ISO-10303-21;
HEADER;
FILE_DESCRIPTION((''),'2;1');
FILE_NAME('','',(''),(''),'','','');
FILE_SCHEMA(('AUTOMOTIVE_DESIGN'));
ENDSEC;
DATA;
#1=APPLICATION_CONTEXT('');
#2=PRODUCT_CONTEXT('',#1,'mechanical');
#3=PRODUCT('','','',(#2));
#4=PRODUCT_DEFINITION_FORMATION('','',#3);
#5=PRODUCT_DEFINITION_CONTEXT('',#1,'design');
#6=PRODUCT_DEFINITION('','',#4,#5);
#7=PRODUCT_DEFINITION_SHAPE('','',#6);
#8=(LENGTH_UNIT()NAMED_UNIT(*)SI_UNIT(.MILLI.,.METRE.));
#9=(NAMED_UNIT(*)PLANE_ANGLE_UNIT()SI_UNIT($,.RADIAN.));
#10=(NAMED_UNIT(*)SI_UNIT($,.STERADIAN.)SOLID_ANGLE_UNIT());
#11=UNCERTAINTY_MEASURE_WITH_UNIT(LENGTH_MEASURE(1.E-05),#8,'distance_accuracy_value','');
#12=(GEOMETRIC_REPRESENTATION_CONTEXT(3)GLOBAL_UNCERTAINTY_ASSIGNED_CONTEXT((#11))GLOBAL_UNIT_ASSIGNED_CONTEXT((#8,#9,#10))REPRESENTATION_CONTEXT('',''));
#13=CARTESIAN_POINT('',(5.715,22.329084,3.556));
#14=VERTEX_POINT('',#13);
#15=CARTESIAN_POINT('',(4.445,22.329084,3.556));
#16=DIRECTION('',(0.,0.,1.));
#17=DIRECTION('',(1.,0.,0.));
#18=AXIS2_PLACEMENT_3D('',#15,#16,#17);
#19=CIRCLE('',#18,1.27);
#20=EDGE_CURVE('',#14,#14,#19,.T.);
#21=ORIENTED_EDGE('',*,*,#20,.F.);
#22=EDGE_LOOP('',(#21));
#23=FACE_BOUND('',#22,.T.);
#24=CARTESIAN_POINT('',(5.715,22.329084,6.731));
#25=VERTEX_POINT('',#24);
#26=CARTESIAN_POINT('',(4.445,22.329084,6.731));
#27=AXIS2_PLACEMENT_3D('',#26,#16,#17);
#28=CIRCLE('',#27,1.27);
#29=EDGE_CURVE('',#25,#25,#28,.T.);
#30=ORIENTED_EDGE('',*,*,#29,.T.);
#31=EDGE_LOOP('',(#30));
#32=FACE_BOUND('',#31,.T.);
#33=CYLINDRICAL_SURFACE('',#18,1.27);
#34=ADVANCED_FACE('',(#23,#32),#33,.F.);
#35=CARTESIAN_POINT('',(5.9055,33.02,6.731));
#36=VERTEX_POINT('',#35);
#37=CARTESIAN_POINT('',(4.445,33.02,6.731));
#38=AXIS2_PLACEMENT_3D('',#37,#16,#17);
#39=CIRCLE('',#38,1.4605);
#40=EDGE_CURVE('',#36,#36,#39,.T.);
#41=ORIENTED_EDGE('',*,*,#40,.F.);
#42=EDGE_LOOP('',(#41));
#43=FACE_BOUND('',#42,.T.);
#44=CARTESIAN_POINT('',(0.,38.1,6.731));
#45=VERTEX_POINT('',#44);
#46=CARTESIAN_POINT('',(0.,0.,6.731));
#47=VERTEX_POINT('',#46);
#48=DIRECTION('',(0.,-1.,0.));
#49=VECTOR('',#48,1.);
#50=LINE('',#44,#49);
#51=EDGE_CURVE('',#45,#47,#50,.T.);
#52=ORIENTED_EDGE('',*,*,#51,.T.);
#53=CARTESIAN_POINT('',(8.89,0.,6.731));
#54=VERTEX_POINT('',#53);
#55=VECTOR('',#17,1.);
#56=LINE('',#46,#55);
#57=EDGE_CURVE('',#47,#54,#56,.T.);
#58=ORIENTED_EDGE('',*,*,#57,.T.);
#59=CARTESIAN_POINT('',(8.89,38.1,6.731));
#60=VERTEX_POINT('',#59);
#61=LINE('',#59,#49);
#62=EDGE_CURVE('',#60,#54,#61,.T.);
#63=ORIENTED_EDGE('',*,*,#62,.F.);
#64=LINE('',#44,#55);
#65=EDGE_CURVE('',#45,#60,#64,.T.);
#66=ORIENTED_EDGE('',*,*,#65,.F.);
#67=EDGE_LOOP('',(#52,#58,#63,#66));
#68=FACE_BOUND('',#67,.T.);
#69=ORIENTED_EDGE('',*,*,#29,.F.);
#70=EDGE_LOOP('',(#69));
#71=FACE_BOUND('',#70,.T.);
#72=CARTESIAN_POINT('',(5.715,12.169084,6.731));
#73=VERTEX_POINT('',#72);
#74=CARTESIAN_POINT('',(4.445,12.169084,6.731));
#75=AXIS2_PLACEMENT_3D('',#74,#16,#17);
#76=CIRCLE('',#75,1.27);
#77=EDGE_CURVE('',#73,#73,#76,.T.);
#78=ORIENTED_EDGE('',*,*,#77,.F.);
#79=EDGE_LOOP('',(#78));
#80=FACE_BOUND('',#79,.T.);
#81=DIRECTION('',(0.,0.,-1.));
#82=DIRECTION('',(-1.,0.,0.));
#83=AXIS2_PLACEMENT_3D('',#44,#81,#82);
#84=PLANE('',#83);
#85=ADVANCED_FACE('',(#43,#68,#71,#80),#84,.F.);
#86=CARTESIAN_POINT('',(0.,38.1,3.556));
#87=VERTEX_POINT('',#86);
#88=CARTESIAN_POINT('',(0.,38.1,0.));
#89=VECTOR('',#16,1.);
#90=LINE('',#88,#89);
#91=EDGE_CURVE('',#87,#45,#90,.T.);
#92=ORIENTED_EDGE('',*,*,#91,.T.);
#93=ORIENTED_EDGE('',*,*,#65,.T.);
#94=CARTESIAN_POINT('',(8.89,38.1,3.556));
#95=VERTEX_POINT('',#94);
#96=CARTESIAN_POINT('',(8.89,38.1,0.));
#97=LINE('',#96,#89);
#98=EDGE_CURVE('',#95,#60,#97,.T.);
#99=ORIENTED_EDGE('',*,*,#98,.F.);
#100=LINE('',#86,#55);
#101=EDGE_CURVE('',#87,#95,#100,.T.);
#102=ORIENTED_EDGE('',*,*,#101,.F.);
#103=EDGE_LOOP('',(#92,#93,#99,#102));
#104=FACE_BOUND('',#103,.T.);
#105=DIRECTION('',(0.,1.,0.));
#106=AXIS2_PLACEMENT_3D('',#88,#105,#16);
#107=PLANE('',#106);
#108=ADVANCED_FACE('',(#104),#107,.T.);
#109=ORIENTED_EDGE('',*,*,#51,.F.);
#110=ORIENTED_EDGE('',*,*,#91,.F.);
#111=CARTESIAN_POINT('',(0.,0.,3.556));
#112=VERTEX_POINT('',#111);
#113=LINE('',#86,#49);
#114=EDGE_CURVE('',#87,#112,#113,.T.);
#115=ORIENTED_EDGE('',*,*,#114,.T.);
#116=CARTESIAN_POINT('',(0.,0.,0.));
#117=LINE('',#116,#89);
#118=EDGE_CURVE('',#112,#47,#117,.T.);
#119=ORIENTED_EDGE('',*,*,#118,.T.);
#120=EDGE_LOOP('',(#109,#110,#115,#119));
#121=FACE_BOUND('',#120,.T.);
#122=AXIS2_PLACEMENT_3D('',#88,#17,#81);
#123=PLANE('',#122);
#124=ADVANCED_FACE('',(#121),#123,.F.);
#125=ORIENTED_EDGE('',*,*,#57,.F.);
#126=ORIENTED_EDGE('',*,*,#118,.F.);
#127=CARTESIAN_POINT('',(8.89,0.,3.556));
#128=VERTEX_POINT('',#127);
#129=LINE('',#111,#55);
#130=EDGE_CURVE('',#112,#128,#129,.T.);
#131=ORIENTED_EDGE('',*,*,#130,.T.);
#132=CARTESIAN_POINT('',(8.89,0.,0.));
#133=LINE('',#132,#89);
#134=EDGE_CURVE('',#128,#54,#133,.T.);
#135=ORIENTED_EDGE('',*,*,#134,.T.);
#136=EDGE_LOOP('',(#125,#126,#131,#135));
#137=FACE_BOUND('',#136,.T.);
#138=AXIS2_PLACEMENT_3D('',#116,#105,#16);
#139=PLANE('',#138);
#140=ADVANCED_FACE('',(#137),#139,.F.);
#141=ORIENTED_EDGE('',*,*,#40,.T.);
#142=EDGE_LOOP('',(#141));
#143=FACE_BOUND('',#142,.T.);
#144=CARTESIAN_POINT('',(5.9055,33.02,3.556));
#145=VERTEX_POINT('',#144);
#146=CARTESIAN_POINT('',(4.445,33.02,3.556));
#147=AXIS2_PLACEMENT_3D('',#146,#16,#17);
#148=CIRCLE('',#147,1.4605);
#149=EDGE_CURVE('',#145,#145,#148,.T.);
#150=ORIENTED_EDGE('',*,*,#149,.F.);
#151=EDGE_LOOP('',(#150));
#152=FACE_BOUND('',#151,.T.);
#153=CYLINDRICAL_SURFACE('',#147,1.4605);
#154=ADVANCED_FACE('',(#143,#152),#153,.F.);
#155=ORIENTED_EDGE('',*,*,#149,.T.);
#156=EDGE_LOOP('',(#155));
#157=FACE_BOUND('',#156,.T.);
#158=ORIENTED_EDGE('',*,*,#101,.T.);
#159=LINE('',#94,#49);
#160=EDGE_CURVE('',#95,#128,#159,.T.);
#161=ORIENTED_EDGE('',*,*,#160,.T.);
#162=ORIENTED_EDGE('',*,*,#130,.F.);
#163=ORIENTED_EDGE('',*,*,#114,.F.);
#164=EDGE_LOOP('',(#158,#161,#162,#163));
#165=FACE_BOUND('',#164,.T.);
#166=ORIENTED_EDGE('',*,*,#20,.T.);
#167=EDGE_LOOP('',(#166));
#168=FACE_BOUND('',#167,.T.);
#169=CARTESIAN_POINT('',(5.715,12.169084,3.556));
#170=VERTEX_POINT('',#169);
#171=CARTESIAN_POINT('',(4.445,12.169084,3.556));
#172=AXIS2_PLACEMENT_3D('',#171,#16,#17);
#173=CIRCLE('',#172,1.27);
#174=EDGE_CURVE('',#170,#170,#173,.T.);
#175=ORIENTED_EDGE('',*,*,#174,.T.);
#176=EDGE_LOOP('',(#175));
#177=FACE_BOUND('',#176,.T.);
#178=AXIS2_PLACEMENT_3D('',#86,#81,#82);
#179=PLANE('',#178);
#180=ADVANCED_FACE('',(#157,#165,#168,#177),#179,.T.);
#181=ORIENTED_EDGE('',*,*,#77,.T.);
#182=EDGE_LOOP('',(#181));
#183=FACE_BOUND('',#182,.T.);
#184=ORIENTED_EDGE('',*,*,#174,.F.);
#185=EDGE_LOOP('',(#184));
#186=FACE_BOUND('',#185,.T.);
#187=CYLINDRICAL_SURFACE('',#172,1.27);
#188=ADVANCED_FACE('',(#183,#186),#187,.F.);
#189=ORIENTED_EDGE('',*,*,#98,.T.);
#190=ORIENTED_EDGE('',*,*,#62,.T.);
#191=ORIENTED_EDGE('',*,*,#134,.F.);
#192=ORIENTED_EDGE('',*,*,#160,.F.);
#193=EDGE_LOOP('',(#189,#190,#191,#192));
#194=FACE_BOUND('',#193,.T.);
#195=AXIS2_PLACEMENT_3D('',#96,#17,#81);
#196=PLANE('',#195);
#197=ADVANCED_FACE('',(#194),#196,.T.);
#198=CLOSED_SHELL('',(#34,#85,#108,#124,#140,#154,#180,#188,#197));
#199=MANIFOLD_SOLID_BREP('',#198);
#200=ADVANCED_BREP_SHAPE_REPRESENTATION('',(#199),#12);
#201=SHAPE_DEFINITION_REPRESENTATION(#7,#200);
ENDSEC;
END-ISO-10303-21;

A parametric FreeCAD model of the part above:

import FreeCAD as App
import Part
import Sketcher
Q = App.Units.Quantity


def add_polygon(sketch, points):
    """Adds a closed chain of lines whose ends are joined by coincident constraints."""
    first, n = sketch.GeometryCount, len(points)
    for a, b in zip(points, points[1:] + points[:1]):
        sketch.addGeometry(Part.LineSegment(App.Vector(*a, 0), App.Vector(*b, 0)), False)
    for i in range(n):
        sketch.addConstraint(Sketcher.Constraint("Coincident", first + i, 2, first + (i + 1) % n, 1))

doc = App.newDocument("Part")
body = doc.addObject("PartDesign::Body", "Body")

# Sketch on XZ plane
sketch1 = body.newObject("Sketcher::SketchObject", "Sketch")
sketch1.AttachmentSupport = (doc.getObject("XZ_Plane"), [""])
sketch1.MapMode = "FlatFace"
add_polygon(sketch1, [(0, 3.556), (0, 6.731), (8.89, 6.731), (8.89, 3.556)])  # lines 0-3
sketch1.addConstraint([
    Sketcher.Constraint("Vertical", 0),
    Sketcher.Constraint("Horizontal", 1),
    Sketcher.Constraint("Vertical", 2),
    Sketcher.Constraint("Horizontal", 3),
    Sketcher.Constraint("PointOnObject", 0, 2, -2),
    Sketcher.Constraint("DistanceX", 1, 1, 1, 2, Q("0.35 in")),
    Sketcher.Constraint("DistanceY", 0, 1, 0, 2, Q("0.125 in")),
    Sketcher.Constraint("DistanceY", -1, 1, 2, 2, Q("0.14 in")),
])
pad1 = body.newObject("PartDesign::Pad", "Pad")
pad1.Profile = sketch1
pad1.Length = Q("1.5 in")
pad1.Reversed = True

# Sketch on XY plane
sketch2 = body.newObject("Sketcher::SketchObject", "Sketch001")
sketch2.AttachmentSupport = (doc.getObject("XY_Plane"), [""])
sketch2.MapMode = "FlatFace"
sketch2.AttachmentOffset = App.Placement(App.Vector(0, 0, 0.265 * 25.4), App.Rotation())
sketch2.addGeometry([
    Part.Circle(App.Vector(4.445, 33.02, 0), App.Vector(0, 0, 1), 1.4605),
    Part.Circle(App.Vector(4.445, 12.169084, 0), App.Vector(0, 0, 1), 1.27),
    Part.Circle(App.Vector(4.445, 22.329084, 0), App.Vector(0, 0, 1), 1.27),
], False)
sketch2.addConstraint([
    Sketcher.Constraint("Equal", 1, 2),
    Sketcher.Constraint("Vertical", 0, 3, 1, 3),
    Sketcher.Constraint("Vertical", 1, 3, 2, 3),
    Sketcher.Constraint("Diameter", 1, Q("0.1 in")),
    Sketcher.Constraint("Diameter", 0, Q("0.115 in")),
    Sketcher.Constraint("DistanceY", -1, 1, 0, 3, Q("1.3 in")),
    Sketcher.Constraint("DistanceY", 1, 3, 2, 3, Q("0.4 in")),
    Sketcher.Constraint("DistanceX", -1, 1, 0, 3, Q("0.175 in")),
    Sketcher.Constraint("DistanceY", -1, 1, 1, 3, Q("12.169084 mm")),
])
pocket1 = body.newObject("PartDesign::Pocket", "Pocket")
pocket1.Profile = sketch2
pocket1.Type = "ThroughAll"

doc.recompute()
